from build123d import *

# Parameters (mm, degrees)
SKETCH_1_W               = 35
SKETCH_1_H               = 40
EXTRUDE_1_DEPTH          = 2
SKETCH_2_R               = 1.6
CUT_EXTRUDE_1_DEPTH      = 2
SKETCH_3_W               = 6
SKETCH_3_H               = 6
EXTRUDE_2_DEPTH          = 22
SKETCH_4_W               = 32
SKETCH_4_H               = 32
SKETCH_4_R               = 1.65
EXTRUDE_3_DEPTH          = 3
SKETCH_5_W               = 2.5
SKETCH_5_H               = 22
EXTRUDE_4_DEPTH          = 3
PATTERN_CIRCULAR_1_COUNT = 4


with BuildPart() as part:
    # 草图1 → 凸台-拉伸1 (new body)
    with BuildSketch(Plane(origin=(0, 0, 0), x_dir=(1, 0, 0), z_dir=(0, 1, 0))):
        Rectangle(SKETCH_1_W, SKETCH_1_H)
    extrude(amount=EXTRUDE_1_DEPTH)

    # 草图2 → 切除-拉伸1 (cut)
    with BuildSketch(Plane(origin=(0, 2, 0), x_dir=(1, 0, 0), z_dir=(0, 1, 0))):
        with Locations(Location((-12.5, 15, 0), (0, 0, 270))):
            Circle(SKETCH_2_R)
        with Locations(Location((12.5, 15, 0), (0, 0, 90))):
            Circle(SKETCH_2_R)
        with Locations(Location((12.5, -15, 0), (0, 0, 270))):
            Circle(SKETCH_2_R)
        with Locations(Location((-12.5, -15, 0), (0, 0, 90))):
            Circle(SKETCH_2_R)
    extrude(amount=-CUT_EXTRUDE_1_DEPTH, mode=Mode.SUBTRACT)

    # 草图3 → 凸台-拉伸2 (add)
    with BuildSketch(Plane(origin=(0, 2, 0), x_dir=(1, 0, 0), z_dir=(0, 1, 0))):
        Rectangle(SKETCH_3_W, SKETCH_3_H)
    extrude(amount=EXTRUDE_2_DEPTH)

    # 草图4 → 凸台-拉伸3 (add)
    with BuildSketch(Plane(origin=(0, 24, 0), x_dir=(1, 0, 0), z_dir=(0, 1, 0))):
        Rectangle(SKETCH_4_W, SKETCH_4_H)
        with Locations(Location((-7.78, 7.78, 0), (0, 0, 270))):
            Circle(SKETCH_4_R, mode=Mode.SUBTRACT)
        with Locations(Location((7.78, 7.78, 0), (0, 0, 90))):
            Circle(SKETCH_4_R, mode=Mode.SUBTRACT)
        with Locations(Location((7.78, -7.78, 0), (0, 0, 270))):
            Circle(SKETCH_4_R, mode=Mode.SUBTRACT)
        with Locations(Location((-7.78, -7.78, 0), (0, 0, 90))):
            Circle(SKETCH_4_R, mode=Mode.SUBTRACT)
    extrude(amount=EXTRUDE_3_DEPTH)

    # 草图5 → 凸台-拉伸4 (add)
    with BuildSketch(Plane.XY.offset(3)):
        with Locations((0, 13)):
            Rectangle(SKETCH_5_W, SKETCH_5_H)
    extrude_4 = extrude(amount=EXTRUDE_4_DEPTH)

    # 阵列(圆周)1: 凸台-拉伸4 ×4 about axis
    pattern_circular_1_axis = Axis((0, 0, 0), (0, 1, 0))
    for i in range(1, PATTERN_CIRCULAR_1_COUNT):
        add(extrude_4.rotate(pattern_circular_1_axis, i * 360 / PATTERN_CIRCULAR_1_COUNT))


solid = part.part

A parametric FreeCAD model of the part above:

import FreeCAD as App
import Part
import Sketcher

doc = App.newDocument("Part")
body = doc.addObject("PartDesign::Body", "Body")

sketch1 = doc.addObject("Sketcher::SketchObject", "Sketch")
body.addObject(sketch1)
sketch1.AttachmentSupport = (doc.XZ_Plane, [""])
sketch1.MapMode = "FlatFace"
sketch1.addGeometry(Part.LineSegment(App.Vector(-18, -20, 0), App.Vector(-18, 20, 0)), False)
sketch1.addGeometry(Part.LineSegment(App.Vector(-18, 20, 0), App.Vector(18, 20, 0)), False)
sketch1.addGeometry(Part.LineSegment(App.Vector(18, 20, 0), App.Vector(18, -20, 0)), False)
sketch1.addGeometry(Part.LineSegment(App.Vector(18, -20, 0), App.Vector(-18, -20, 0)), False)
sketch1.addConstraint(Sketcher.Constraint("Coincident", 0, 2, 1, 1))
sketch1.addConstraint(Sketcher.Constraint("Coincident", 1, 2, 2, 1))
sketch1.addConstraint(Sketcher.Constraint("Coincident", 2, 2, 3, 1))
sketch1.addConstraint(Sketcher.Constraint("Coincident", 3, 2, 0, 1))
sketch1.addConstraint(Sketcher.Constraint("Vertical", 0))
sketch1.addConstraint(Sketcher.Constraint("Horizontal", 1))
sketch1.addConstraint(Sketcher.Constraint("Vertical", 2))
sketch1.addConstraint(Sketcher.Constraint("Horizontal", 3))
sketch1.addConstraint(Sketcher.Constraint("Symmetric", 0, 2, 2, 2, -1, 1))
sketch1.addConstraint(Sketcher.Constraint("DistanceX", 1, 1, 1, 2, 35.0))
sketch1.addConstraint(Sketcher.Constraint("DistanceY", 0, 1, 0, 2, 40.0))
pad1 = doc.addObject("PartDesign::Pad", "Pad")
body.addObject(pad1)
pad1.Profile = sketch1
pad1.Length = 2
pad1.Reversed = True

sketch2 = doc.addObject("Sketcher::SketchObject", "Sketch001")
body.addObject(sketch2)
sketch2.AttachmentSupport = (doc.XZ_Plane, [""])
sketch2.MapMode = "FlatFace"
sketch2.AttachmentOffset = App.Placement(App.Vector(0, 0, -2), App.Rotation())
sketch2.addGeometry(Part.Circle(App.Vector(-12.5, -15, 0), App.Vector(0, 0, 1), 1.6), False)
sketch2.addGeometry(Part.Circle(App.Vector(12.5, -15, 0), App.Vector(0, 0, 1), 1.6), False)
sketch2.addGeometry(Part.Circle(App.Vector(12.5, 15, 0), App.Vector(0, 0, 1), 1.6), False)
sketch2.addGeometry(Part.Circle(App.Vector(-12.5, 15, 0), App.Vector(0, 0, 1), 1.6), False)
sketch2.addConstraint(Sketcher.Constraint("Equal", 0, 1))
sketch2.addConstraint(Sketcher.Constraint("Equal", 1, 2))
sketch2.addConstraint(Sketcher.Constraint("Equal", 2, 3))
sketch2.addConstraint(Sketcher.Constraint("Symmetric", 0, 3, 2, 3, -1, 1))
sketch2.addConstraint(Sketcher.Constraint("Symmetric", 1, 3, 3, 3, -1, 1))
sketch2.addConstraint(Sketcher.Constraint("Symmetric", 0, 3, 1, 3, -2))
sketch2.addConstraint(Sketcher.Constraint("Diameter", 0, 3.2))
sketch2.addConstraint(Sketcher.Constraint("DistanceY", 0, 3, -1, 1, 15.0))
sketch2.addConstraint(Sketcher.Constraint("DistanceX", 0, 3, 1, 3, 25.0))
pocket1 = doc.addObject("PartDesign::Pocket", "Pocket")
body.addObject(pocket1)
pocket1.Profile = sketch2
pocket1.Length = 2
pocket1.Reversed = True

sketch3 = doc.addObject("Sketcher::SketchObject", "Sketch002")
body.addObject(sketch3)
sketch3.AttachmentSupport = (doc.XZ_Plane, [""])
sketch3.MapMode = "FlatFace"
sketch3.AttachmentOffset = App.Placement(App.Vector(0, 0, -2), App.Rotation())
sketch3.addGeometry(Part.LineSegment(App.Vector(-3, -3, 0), App.Vector(-3, 3, 0)), False)
sketch3.addGeometry(Part.LineSegment(App.Vector(-3, 3, 0), App.Vector(3, 3, 0)), False)
sketch3.addGeometry(Part.LineSegment(App.Vector(3, 3, 0), App.Vector(3, -3, 0)), False)
sketch3.addGeometry(Part.LineSegment(App.Vector(3, -3, 0), App.Vector(-3, -3, 0)), False)
sketch3.addConstraint(Sketcher.Constraint("Coincident", 0, 2, 1, 1))
sketch3.addConstraint(Sketcher.Constraint("Coincident", 1, 2, 2, 1))
sketch3.addConstraint(Sketcher.Constraint("Coincident", 2, 2, 3, 1))
sketch3.addConstraint(Sketcher.Constraint("Coincident", 3, 2, 0, 1))
sketch3.addConstraint(Sketcher.Constraint("Vertical", 0))
sketch3.addConstraint(Sketcher.Constraint("Horizontal", 1))
sketch3.addConstraint(Sketcher.Constraint("Vertical", 2))
sketch3.addConstraint(Sketcher.Constraint("Horizontal", 3))
sketch3.addConstraint(Sketcher.Constraint("Symmetric", 0, 2, 2, 2, -1, 1))
sketch3.addConstraint(Sketcher.Constraint("Equal", 3, 0))
sketch3.addConstraint(Sketcher.Constraint("DistanceX", 1, 1, 1, 2, 6.0))
pad2 = doc.addObject("PartDesign::Pad", "Pad001")
body.addObject(pad2)
pad2.Profile = sketch3
pad2.Length = 22
pad2.Reversed = True

sketch4 = doc.addObject("Sketcher::SketchObject", "Sketch003")
body.addObject(sketch4)
sketch4.AttachmentSupport = (doc.XZ_Plane, [""])
sketch4.MapMode = "FlatFace"
sketch4.AttachmentOffset = App.Placement(App.Vector(0, 0, -24), App.Rotation())
sketch4.addGeometry(Part.LineSegment(App.Vector(-16, -16, 0), App.Vector(-16, 16, 0)), False)
sketch4.addGeometry(Part.LineSegment(App.Vector(-16, 16, 0), App.Vector(16, 16, 0)), False)
sketch4.addGeometry(Part.LineSegment(App.Vector(16, 16, 0), App.Vector(16, -16, 0)), False)
sketch4.addGeometry(Part.LineSegment(App.Vector(16, -16, 0), App.Vector(-16, -16, 0)), False)
sketch4.addGeometry(Part.Circle(App.Vector(-7.8, 7.8, 0), App.Vector(0, 0, 1), 1.6), False)
sketch4.addGeometry(Part.Circle(App.Vector(7.8, 7.8, 0), App.Vector(0, 0, 1), 1.6), False)
sketch4.addGeometry(Part.Circle(App.Vector(-7.8, -7.8, 0), App.Vector(0, 0, 1), 1.6), False)
sketch4.addGeometry(Part.Circle(App.Vector(7.8, -7.8, 0), App.Vector(0, 0, 1), 1.6), False)
sketch4.addConstraint(Sketcher.Constraint("Coincident", 0, 2, 1, 1))
sketch4.addConstraint(Sketcher.Constraint("Coincident", 1, 2, 2, 1))
sketch4.addConstraint(Sketcher.Constraint("Coincident", 2, 2, 3, 1))
sketch4.addConstraint(Sketcher.Constraint("Coincident", 3, 2, 0, 1))
sketch4.addConstraint(Sketcher.Constraint("Vertical", 0))
sketch4.addConstraint(Sketcher.Constraint("Horizontal", 1))
sketch4.addConstraint(Sketcher.Constraint("Vertical", 2))
sketch4.addConstraint(Sketcher.Constraint("Horizontal", 3))
sketch4.addConstraint(Sketcher.Constraint("Equal", 4, 5))
sketch4.addConstraint(Sketcher.Constraint("Equal", 5, 6))
sketch4.addConstraint(Sketcher.Constraint("Equal", 6, 7))
sketch4.addConstraint(Sketcher.Constraint("Symmetric", 5, 3, 6, 3, -1, 1))
sketch4.addConstraint(Sketcher.Constraint("Symmetric", 4, 3, 7, 3, -1, 1))
sketch4.addConstraint(Sketcher.Constraint("Symmetric", 0, 2, 2, 2, -1, 1))
sketch4.addConstraint(Sketcher.Constraint("Symmetric", 4, 3, 5, 3, -2))
sketch4.addConstraint(Sketcher.Constraint("Equal", 3, 0))
sketch4.addConstraint(Sketcher.Constraint("Diameter", 4, 3.3))
sketch4.addConstraint(Sketcher.Constraint("DistanceX", 1, 1, 1, 2, 32.0))
sketch4.addConstraint(Sketcher.Constraint("DistanceX", 4, 3, -1, 1, 7.78))
sketch4.addConstraint(Sketcher.Constraint("DistanceY", -1, 1, 4, 3, 7.78))
pad3 = doc.addObject("PartDesign::Pad", "Pad002")
body.addObject(pad3)
pad3.Profile = sketch4
pad3.Length = 3
pad3.Reversed = True

sketch5 = doc.addObject("Sketcher::SketchObject", "Sketch004")
body.addObject(sketch5)
sketch5.AttachmentSupport = (doc.XY_Plane, [""])
sketch5.MapMode = "FlatFace"
sketch5.AttachmentOffset = App.Placement(App.Vector(0, 0, 3), App.Rotation())
sketch5.addGeometry(Part.LineSegment(App.Vector(-1.2, 24, 0), App.Vector(-1.2, 2, 0)), False)
sketch5.addGeometry(Part.LineSegment(App.Vector(-1.2, 2, 0), App.Vector(1.2, 2, 0)), False)
sketch5.addGeometry(Part.LineSegment(App.Vector(1.2, 2, 0), App.Vector(1.2, 24, 0)), False)
sketch5.addGeometry(Part.LineSegment(App.Vector(1.2, 24, 0), App.Vector(-1.2, 24, 0)), False)
sketch5.addConstraint(Sketcher.Constraint("Coincident", 0, 2, 1, 1))
sketch5.addConstraint(Sketcher.Constraint("Coincident", 1, 2, 2, 1))
sketch5.addConstraint(Sketcher.Constraint("Coincident", 2, 2, 3, 1))
sketch5.addConstraint(Sketcher.Constraint("Coincident", 3, 2, 0, 1))
sketch5.addConstraint(Sketcher.Constraint("Vertical", 0))
sketch5.addConstraint(Sketcher.Constraint("Horizontal", 1))
sketch5.addConstraint(Sketcher.Constraint("Vertical", 2))
sketch5.addConstraint(Sketcher.Constraint("Horizontal", 3))
sketch5.addConstraint(Sketcher.Constraint("DistanceY", 0, 2, 0, 1, 22.0))
sketch5.addConstraint(Sketcher.Constraint("DistanceX", 1, 1, 1, 2, 2.5))
sketch5.addConstraint(Sketcher.Constraint("DistanceY", -1, 1, 0, 2, 2.0))
sketch5.addConstraint(Sketcher.Constraint("DistanceX", 0, 2, -1, 1, 1.25))
pad4 = doc.addObject("PartDesign::Pad", "Pad003")
body.addObject(pad4)
pad4.Profile = sketch5
pad4.Length = 3
doc.recompute()

polarpattern = doc.addObject("PartDesign::PolarPattern", "PolarPattern")
body.addObject(polarpattern)
polarpattern.Originals = [pad4]
polarpattern.Axis = (doc.Y_Axis, [""])
polarpattern.Angle = 360
polarpattern.Occurrences = 4
body.Tip = polarpattern

doc.recompute()
